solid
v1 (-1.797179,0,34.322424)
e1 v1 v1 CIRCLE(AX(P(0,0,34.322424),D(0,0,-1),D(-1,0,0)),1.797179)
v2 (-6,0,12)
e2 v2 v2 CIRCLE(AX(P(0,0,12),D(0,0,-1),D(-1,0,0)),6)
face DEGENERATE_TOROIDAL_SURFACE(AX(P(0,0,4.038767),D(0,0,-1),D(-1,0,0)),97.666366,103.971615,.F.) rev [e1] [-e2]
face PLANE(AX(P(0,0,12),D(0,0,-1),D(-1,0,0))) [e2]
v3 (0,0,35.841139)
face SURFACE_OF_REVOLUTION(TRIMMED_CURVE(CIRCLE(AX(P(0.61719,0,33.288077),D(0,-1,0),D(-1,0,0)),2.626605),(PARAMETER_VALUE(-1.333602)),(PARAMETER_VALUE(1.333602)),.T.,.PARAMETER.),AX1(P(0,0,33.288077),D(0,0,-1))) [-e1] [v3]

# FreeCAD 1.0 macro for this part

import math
import FreeCAD as App
import Part
import Sketcher
Q = App.Units.Quantity

doc = App.newDocument("Part")
body = doc.addObject("PartDesign::Body", "Body")

sketch1 = body.newObject("Sketcher::SketchObject", "Sketch")
sketch1.AttachmentSupport = (doc.getObject("YZ_Plane"), [""])
sketch1.MapMode = "FlatFace"
sketch1.addGeometry([
    Part.LineSegment(App.Vector(0, 35.8, 0), App.Vector(0, 12, 0)),
    Part.LineSegment(App.Vector(0, 12, 0), App.Vector(6, 12, 0)),
    Part.ArcOfCircle(Part.Circle(App.Vector(-97.7, 4, 0), App.Vector(0, 0, 1), 104), math.radians(4.39), math.radians(16.93)),
    Part.ArcOfCircle(Part.Circle(App.Vector(-0.6, 33.3, 0), App.Vector(0, 0, 1), 2.6), math.radians(23), math.radians(76)),
], False)
sketch1.addConstraint([
    Sketcher.Constraint("Coincident", 0, 2, 1, 1),
    Sketcher.Constraint("Coincident", 1, 2, 2, 1),
    Sketcher.Constraint("Coincident", 2, 2, 3, 1),
    Sketcher.Constraint("Coincident", 3, 2, 0, 1),
    Sketcher.Constraint("Vertical", 0),
    Sketcher.Constraint("Horizontal", 1),
    Sketcher.Constraint("PointOnObject", 0, 2, -2),
    Sketcher.Constraint("DistanceX", 1, 1, 1, 2, Q("6 mm")),
    Sketcher.Constraint("DistanceY", -1, 1, 0, 2, Q("12 mm")),
    Sketcher.Constraint("Radius", 2, Q("103.971615 mm")),
    Sketcher.Constraint("Radius", 3, Q("2.626605 mm")),
    Sketcher.Constraint("DistanceY", 0, 2, 0, 1, Q("23.841139 mm")),
    Sketcher.Constraint("DistanceX", 3, 3, -1, 1, Q("0.61719 mm")),
    Sketcher.Constraint("DistanceX", -1, 1, 2, 2, Q("1.797179 mm")),
])
revolution = body.newObject("PartDesign::Revolution", "Revolution")
revolution.Profile = sketch1
revolution.ReferenceAxis = (sketch1, ["V_Axis"])
revolution.Angle = 360

doc.recompute()
